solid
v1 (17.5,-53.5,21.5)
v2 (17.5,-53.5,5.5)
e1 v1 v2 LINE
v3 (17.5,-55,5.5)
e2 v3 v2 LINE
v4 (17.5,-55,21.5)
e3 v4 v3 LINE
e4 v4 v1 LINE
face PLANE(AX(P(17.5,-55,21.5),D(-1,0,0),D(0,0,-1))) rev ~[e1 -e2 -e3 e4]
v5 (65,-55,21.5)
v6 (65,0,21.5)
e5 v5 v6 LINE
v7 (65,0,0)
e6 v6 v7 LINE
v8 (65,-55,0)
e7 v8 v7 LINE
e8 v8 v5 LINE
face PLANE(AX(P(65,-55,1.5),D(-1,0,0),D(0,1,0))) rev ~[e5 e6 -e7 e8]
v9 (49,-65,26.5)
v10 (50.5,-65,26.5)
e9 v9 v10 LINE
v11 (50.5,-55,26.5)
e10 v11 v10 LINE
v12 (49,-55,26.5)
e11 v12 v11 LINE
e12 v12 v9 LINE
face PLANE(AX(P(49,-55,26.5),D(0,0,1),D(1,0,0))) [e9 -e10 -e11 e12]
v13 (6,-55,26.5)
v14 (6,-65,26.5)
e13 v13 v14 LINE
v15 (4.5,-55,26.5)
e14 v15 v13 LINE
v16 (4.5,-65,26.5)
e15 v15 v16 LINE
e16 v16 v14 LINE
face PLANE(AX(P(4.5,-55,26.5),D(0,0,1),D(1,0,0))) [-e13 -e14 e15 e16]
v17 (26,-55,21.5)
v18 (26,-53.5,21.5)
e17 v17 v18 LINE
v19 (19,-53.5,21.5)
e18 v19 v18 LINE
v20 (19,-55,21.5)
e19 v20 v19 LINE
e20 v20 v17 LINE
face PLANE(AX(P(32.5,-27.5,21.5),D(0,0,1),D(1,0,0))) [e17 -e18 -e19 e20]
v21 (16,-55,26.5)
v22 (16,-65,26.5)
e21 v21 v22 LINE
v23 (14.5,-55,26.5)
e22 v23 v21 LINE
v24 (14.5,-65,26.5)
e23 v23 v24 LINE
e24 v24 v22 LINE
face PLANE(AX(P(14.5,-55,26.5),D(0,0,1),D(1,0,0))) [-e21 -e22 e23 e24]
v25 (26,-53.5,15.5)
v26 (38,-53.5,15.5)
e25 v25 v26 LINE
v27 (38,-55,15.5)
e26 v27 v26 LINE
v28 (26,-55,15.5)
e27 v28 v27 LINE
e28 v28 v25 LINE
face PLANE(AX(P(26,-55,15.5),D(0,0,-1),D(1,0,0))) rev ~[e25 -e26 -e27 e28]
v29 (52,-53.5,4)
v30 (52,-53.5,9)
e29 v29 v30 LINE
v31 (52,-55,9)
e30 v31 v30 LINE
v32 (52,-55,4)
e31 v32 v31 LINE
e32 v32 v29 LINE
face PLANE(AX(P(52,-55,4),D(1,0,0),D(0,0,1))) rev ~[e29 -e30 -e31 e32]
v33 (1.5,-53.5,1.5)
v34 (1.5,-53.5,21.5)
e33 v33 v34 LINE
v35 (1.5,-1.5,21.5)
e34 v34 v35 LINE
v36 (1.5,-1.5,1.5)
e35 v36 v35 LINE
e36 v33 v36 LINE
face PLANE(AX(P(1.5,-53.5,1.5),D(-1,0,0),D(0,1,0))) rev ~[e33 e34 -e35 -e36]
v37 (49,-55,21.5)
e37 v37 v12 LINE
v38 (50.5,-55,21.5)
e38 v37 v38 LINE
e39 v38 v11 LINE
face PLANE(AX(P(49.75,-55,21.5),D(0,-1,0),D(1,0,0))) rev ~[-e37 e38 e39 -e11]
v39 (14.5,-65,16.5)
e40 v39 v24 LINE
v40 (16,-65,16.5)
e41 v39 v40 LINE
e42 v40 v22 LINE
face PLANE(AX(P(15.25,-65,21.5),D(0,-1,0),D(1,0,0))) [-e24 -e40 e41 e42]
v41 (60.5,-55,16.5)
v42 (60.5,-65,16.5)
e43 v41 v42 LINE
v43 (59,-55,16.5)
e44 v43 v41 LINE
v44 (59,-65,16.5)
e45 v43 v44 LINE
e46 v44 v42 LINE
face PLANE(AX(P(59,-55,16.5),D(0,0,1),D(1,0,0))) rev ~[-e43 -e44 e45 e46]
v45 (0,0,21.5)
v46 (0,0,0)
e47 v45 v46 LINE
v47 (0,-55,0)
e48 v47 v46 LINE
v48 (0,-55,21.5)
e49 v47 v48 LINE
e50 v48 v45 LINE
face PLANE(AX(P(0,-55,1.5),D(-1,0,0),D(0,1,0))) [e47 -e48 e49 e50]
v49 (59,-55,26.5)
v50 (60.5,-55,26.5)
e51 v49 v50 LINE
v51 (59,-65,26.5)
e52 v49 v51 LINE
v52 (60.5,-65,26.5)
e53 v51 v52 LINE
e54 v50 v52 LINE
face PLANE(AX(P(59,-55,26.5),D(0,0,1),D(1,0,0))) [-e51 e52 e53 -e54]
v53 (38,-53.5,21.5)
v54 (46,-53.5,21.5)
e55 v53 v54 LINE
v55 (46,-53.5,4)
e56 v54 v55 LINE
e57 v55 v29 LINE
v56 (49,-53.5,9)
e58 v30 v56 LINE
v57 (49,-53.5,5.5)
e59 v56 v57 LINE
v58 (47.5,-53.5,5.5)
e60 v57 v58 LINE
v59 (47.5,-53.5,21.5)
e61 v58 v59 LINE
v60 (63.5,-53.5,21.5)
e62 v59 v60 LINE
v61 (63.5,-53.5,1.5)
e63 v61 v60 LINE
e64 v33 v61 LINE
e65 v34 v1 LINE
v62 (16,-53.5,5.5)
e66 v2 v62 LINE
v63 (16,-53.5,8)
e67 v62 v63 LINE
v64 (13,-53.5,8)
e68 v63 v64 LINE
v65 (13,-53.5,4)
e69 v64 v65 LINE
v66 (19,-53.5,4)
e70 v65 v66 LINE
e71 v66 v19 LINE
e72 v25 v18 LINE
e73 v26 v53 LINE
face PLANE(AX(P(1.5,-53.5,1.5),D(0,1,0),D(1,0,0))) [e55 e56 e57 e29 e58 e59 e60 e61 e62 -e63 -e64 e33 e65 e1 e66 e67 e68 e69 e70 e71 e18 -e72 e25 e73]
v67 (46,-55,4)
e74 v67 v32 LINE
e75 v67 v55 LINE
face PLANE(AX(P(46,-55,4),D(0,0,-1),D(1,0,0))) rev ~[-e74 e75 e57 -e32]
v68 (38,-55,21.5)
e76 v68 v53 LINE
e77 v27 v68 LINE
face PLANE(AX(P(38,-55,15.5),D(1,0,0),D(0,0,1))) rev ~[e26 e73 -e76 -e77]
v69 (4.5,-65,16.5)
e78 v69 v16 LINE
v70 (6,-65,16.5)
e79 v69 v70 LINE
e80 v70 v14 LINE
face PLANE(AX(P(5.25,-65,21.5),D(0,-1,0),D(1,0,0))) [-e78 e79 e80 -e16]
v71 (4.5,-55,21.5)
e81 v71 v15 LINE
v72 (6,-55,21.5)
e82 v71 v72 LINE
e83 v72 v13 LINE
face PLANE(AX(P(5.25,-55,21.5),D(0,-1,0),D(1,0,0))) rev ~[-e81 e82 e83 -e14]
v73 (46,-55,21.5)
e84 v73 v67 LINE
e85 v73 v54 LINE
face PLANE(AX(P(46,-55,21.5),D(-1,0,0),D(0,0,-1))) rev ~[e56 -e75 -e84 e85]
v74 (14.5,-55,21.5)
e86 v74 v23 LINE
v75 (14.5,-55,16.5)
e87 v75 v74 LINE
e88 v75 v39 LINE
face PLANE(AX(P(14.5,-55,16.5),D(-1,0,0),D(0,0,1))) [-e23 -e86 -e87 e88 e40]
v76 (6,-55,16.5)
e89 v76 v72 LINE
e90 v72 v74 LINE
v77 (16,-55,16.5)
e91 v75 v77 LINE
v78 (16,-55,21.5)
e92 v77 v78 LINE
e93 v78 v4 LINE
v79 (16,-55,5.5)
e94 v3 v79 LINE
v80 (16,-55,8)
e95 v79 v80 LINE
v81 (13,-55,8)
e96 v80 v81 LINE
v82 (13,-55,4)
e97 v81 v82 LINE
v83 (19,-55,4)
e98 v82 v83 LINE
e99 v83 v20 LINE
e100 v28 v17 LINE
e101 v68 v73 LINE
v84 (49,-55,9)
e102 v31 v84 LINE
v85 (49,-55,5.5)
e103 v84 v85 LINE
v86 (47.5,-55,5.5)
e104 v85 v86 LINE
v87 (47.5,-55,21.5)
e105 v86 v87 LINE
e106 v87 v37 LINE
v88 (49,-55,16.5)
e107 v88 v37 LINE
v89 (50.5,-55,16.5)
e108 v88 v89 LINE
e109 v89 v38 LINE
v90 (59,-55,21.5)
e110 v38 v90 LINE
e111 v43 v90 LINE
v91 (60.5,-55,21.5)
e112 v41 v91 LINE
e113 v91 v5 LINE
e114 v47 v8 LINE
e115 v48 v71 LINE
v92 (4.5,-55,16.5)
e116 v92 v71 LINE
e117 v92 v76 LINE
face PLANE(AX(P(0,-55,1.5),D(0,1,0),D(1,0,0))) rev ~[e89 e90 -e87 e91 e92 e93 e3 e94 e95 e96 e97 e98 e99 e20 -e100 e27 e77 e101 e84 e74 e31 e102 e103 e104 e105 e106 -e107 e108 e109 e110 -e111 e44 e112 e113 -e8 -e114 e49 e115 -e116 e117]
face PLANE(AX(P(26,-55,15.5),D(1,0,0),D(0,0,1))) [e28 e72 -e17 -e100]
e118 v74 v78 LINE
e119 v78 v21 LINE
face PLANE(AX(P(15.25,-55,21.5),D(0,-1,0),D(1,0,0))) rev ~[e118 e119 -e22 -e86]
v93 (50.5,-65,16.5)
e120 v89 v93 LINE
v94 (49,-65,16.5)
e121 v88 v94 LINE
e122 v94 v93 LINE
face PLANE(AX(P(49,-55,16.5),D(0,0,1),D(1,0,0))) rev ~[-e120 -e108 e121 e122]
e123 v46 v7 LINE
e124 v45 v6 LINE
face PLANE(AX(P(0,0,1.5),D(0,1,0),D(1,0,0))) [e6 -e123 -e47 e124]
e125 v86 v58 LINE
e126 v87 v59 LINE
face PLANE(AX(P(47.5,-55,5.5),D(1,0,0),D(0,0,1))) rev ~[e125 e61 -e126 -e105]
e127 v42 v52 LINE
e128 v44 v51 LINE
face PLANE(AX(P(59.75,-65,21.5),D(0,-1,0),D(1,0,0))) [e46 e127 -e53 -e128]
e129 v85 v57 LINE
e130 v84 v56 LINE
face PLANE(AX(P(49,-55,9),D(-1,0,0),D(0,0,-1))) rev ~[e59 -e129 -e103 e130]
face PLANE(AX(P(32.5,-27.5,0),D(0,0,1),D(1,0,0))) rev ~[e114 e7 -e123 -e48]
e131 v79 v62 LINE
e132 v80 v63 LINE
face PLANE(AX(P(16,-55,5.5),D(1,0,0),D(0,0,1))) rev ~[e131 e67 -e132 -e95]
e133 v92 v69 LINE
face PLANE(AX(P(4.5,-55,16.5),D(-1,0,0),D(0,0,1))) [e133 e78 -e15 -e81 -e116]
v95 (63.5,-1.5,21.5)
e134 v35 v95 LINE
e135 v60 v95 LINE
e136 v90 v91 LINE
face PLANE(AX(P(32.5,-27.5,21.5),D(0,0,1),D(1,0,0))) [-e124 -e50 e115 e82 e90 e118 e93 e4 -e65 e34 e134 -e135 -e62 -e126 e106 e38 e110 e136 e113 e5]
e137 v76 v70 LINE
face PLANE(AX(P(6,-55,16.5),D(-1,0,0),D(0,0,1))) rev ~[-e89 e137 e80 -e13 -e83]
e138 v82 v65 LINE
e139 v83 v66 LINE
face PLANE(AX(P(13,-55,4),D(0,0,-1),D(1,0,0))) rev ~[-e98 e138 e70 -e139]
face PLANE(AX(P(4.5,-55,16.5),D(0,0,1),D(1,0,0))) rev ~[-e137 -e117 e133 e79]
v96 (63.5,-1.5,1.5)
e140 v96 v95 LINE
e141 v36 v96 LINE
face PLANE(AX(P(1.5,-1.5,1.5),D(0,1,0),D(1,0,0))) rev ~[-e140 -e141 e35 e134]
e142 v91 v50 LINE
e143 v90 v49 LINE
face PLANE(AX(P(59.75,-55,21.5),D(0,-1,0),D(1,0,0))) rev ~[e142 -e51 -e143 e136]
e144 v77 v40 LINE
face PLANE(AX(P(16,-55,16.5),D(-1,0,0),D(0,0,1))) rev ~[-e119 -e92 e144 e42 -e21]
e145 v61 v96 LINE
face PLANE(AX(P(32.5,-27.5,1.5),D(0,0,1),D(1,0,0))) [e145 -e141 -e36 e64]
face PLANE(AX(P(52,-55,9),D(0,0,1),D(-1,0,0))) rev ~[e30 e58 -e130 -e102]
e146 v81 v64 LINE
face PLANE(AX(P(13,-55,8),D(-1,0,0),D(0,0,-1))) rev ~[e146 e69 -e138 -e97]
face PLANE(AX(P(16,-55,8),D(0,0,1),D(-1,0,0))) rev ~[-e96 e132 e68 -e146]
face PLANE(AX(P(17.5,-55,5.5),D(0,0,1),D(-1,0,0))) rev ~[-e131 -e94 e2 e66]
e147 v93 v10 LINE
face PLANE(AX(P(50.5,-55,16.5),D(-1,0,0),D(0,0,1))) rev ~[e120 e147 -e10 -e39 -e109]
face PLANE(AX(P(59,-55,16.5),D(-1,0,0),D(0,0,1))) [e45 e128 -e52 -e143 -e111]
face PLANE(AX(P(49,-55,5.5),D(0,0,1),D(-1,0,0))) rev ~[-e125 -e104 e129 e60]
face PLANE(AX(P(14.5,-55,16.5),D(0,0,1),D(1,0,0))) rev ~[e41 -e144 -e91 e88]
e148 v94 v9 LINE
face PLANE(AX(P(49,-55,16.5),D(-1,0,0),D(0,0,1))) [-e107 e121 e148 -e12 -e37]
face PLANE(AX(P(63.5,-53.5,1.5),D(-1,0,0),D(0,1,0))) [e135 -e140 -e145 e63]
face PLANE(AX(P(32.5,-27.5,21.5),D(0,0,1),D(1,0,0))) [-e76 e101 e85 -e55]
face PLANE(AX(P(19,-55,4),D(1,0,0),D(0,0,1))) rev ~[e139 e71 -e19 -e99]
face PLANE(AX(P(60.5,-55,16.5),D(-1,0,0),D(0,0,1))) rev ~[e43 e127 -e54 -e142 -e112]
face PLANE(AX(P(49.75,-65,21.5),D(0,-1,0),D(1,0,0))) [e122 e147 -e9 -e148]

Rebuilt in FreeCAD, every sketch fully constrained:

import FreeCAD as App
import Part
import Sketcher
from FreeCAD import Vector
Q = App.Units.Quantity


def add_polygon(sketch, points):
    """Adds a closed chain of lines whose ends are joined by coincident constraints."""
    first, n = sketch.GeometryCount, len(points)
    for a, b in zip(points, points[1:] + points[:1]):
        sketch.addGeometry(Part.LineSegment(App.Vector(*a, 0), App.Vector(*b, 0)), False)
    for i in range(n):
        sketch.addConstraint(Sketcher.Constraint("Coincident", first + i, 2, first + (i + 1) % n, 1))

doc = App.newDocument("Part")
body = doc.addObject("PartDesign::Body", "Body")

# Sketch on XY plane
sketch1 = body.newObject("Sketcher::SketchObject", "Sketch")
sketch1.AttachmentSupport = (doc.getObject("XY_Plane"), [""])
sketch1.MapMode = "FlatFace"
add_polygon(sketch1, [(0, 0), (0, -55), (65, -55), (65, 0)])  # lines 0-3
sketch1.addConstraint(Sketcher.Constraint("Vertical", 0))
sketch1.addConstraint(Sketcher.Constraint("Horizontal", 1))
sketch1.addConstraint(Sketcher.Constraint("Vertical", 2))
sketch1.addConstraint(Sketcher.Constraint("Horizontal", 3))
sketch1.addConstraint(Sketcher.Constraint("Coincident", 3, 2, -1, 1))
sketch1.addConstraint(Sketcher.Constraint("DistanceX", 1, 1, 1, 2, Q("65 mm")))
sketch1.addConstraint(Sketcher.Constraint("DistanceY", 0, 2, 0, 1, Q("55 mm")))
pad1 = body.newObject("PartDesign::Pad", "Pad")
pad1.Profile = sketch1
pad1.Length = 1.5

# Sketch on XY plane
sketch2 = body.newObject("Sketcher::SketchObject", "Sketch001")
sketch2.AttachmentSupport = (doc.getObject("XY_Plane"), [""])
sketch2.MapMode = "FlatFace"
sketch2.AttachmentOffset = App.Placement(Vector(0, 0, 1.5), App.Rotation())
add_polygon(sketch2, [(0, 0), (0, -55), (65, -55), (65, 0)])  # lines 0-3
add_polygon(sketch2, [(63.5, -53.5), (1.5, -53.5), (1.5, -1.5), (63.5, -1.5)])  # lines 4-7
sketch2.addConstraint(Sketcher.Constraint("Vertical", 0))
sketch2.addConstraint(Sketcher.Constraint("Horizontal", 1))
sketch2.addConstraint(Sketcher.Constraint("Vertical", 2))
sketch2.addConstraint(Sketcher.Constraint("Horizontal", 3))
sketch2.addConstraint(Sketcher.Constraint("Horizontal", 4))
sketch2.addConstraint(Sketcher.Constraint("Vertical", 5))
sketch2.addConstraint(Sketcher.Constraint("Horizontal", 6))
sketch2.addConstraint(Sketcher.Constraint("Vertical", 7))
sketch2.addConstraint(Sketcher.Constraint("Coincident", 3, 2, -1, 1))
sketch2.addConstraint(Sketcher.Constraint("DistanceX", 1, 1, 1, 2, Q("65 mm")))
sketch2.addConstraint(Sketcher.Constraint("DistanceX", 4, 2, 4, 1, Q("62 mm")))
sketch2.addConstraint(Sketcher.Constraint("DistanceY", 0, 2, 0, 1, Q("55 mm")))
sketch2.addConstraint(Sketcher.Constraint("DistanceY", 5, 1, 5, 2, Q("52 mm")))
sketch2.addConstraint(Sketcher.Constraint("DistanceX", -1, 1, 4, 2, Q("1.5 mm")))
sketch2.addConstraint(Sketcher.Constraint("DistanceY", 4, 2, -1, 1, Q("53.5 mm")))
pad2 = body.newObject("PartDesign::Pad", "Pad001")
pad2.Profile = sketch2
pad2.Length = 20

# Sketch on XZ plane
sketch3 = body.newObject("Sketcher::SketchObject", "Sketch002")
sketch3.AttachmentSupport = (doc.getObject("XZ_Plane"), [""])
sketch3.MapMode = "FlatFace"
sketch3.AttachmentOffset = App.Placement(Vector(0, 0, 55), App.Rotation())
add_polygon(sketch3, [(26, 21.5), (26, 15.5), (38, 15.5), (38, 21.5)])  # lines 0-3
sketch3.addConstraint(Sketcher.Constraint("Vertical", 0))
sketch3.addConstraint(Sketcher.Constraint("Horizontal", 1))
sketch3.addConstraint(Sketcher.Constraint("Vertical", 2))
sketch3.addConstraint(Sketcher.Constraint("Horizontal", 3))
sketch3.addConstraint(Sketcher.Constraint("DistanceX", 1, 1, 1, 2, Q("12 mm")))
sketch3.addConstraint(Sketcher.Constraint("DistanceY", 0, 2, 0, 1, Q("6 mm")))
sketch3.addConstraint(Sketcher.Constraint("DistanceX", -1, 1, 0, 2, Q("26 mm")))
sketch3.addConstraint(Sketcher.Constraint("DistanceY", -1, 1, 0, 2, Q("15.5 mm")))
pocket1 = body.newObject("PartDesign::Pocket", "Pocket")
pocket1.Profile = sketch3
pocket1.Length = 1.5

# Sketch on XZ plane
sketch4 = body.newObject("Sketcher::SketchObject", "Sketch003")
sketch4.AttachmentSupport = (doc.getObject("XZ_Plane"), [""])
sketch4.MapMode = "FlatFace"
sketch4.AttachmentOffset = App.Placement(Vector(0, 0, 55), App.Rotation())
add_polygon(sketch4, [(19, 21.5), (17.5, 21.5), (17.5, 5.5), (16, 5.5), (16, 8), (13, 8), (13, 4), (19, 4)])  # lines 0-7
add_polygon(sketch4, [(47.5, 5.5), (47.5, 21.5), (46, 21.5), (46, 4), (52, 4), (52, 9), (49, 9), (49, 5.5)])  # lines 8-15
sketch4.addConstraint(Sketcher.Constraint("Horizontal", 0))
sketch4.addConstraint(Sketcher.Constraint("Vertical", 1))
sketch4.addConstraint(Sketcher.Constraint("Horizontal", 2))
sketch4.addConstraint(Sketcher.Constraint("Vertical", 3))
sketch4.addConstraint(Sketcher.Constraint("Horizontal", 4))
sketch4.addConstraint(Sketcher.Constraint("Vertical", 5))
sketch4.addConstraint(Sketcher.Constraint("Horizontal", 6))
sketch4.addConstraint(Sketcher.Constraint("Vertical", 7))
sketch4.addConstraint(Sketcher.Constraint("Vertical", 8))
sketch4.addConstraint(Sketcher.Constraint("Horizontal", 9))
sketch4.addConstraint(Sketcher.Constraint("Vertical", 10))
sketch4.addConstraint(Sketcher.Constraint("Horizontal", 11))
sketch4.addConstraint(Sketcher.Constraint("Vertical", 12))
sketch4.addConstraint(Sketcher.Constraint("Horizontal", 13))
sketch4.addConstraint(Sketcher.Constraint("Vertical", 14))
sketch4.addConstraint(Sketcher.Constraint("Horizontal", 15))
sketch4.addConstraint(Sketcher.Constraint("Horizontal", 7, 2, 8, 2))
sketch4.addConstraint(Sketcher.Constraint("Horizontal", 6, 2, 10, 2))
sketch4.addConstraint(Sketcher.Constraint("Horizontal", 2, 2, 14, 2))
sketch4.addConstraint(Sketcher.Constraint("Equal", 0, 2))
sketch4.addConstraint(Sketcher.Constraint("Equal", 2, 9))
sketch4.addConstraint(Sketcher.Constraint("Equal", 6, 11))
sketch4.addConstraint(Sketcher.Constraint("Equal", 4, 13))
sketch4.addConstraint(Sketcher.Constraint("DistanceX", 4, 2, 4, 1, Q("3 mm")))
sketch4.addConstraint(Sketcher.Constraint("DistanceX", 6, 1, 6, 2, Q("6 mm")))
sketch4.addConstraint(Sketcher.Constraint("DistanceY", 1, 2, 1, 1, Q("16 mm")))
sketch4.addConstraint(Sketcher.Constraint("DistanceY", 5, 2, 5, 1, Q("4 mm")))
sketch4.addConstraint(Sketcher.Constraint("DistanceY", 12, 1, 12, 2, Q("5 mm")))
sketch4.addConstraint(Sketcher.Constraint("DistanceY", 3, 1, 3, 2, Q("2.5 mm")))
sketch4.addConstraint(Sketcher.Constraint("DistanceX", -1, 1, 2, 2, Q("16 mm")))
sketch4.addConstraint(Sketcher.Constraint("DistanceY", -1, 1, 3, 2, Q("8 mm")))
sketch4.addConstraint(Sketcher.Constraint("DistanceX", -1, 1, 9, 2, Q("46 mm")))
pocket2 = body.newObject("PartDesign::Pocket", "Pocket001")
pocket2.Profile = sketch4
pocket2.Length = 1.5

# Sketch on XZ plane
sketch5 = body.newObject("Sketcher::SketchObject", "Sketch004")
sketch5.AttachmentSupport = (doc.getObject("XZ_Plane"), [""])
sketch5.MapMode = "FlatFace"
sketch5.AttachmentOffset = App.Placement(Vector(0, 0, 55), App.Rotation())
add_polygon(sketch5, [(14.5, 26.5), (14.5, 16.5), (16, 16.5), (16, 26.5)])  # lines 0-3
add_polygon(sketch5, [(4.5, 26.5), (4.5, 16.5), (6, 16.5), (6, 26.5)])  # lines 4-7
add_polygon(sketch5, [(49, 26.5), (49, 16.5), (50.5, 16.5), (50.5, 26.5)])  # lines 8-11
add_polygon(sketch5, [(59, 26.5), (59, 16.5), (60.5, 16.5), (60.5, 26.5)])  # lines 12-15
sketch5.addConstraint(Sketcher.Constraint("Vertical", 0))
sketch5.addConstraint(Sketcher.Constraint("Horizontal", 1))
sketch5.addConstraint(Sketcher.Constraint("Vertical", 2))
sketch5.addConstraint(Sketcher.Constraint("Horizontal", 3))
sketch5.addConstraint(Sketcher.Constraint("Vertical", 4))
sketch5.addConstraint(Sketcher.Constraint("Horizontal", 5))
sketch5.addConstraint(Sketcher.Constraint("Vertical", 6))
sketch5.addConstraint(Sketcher.Constraint("Horizontal", 7))
sketch5.addConstraint(Sketcher.Constraint("Vertical", 8))
sketch5.addConstraint(Sketcher.Constraint("Horizontal", 9))
sketch5.addConstraint(Sketcher.Constraint("Vertical", 10))
sketch5.addConstraint(Sketcher.Constraint("Horizontal", 11))
sketch5.addConstraint(Sketcher.Constraint("Vertical", 12))
sketch5.addConstraint(Sketcher.Constraint("Horizontal", 13))
sketch5.addConstraint(Sketcher.Constraint("Vertical", 14))
sketch5.addConstraint(Sketcher.Constraint("Horizontal", 15))
sketch5.addConstraint(Sketcher.Constraint("Horizontal", 1, 2, 4, 2))
sketch5.addConstraint(Sketcher.Constraint("Horizontal", 3, 2, 6, 2))
sketch5.addConstraint(Sketcher.Constraint("Horizontal", 5, 2, 8, 2))
sketch5.addConstraint(Sketcher.Constraint("Horizontal", 7, 2, 10, 2))
sketch5.addConstraint(Sketcher.Constraint("Horizontal", 9, 2, 12, 2))
sketch5.addConstraint(Sketcher.Constraint("Horizontal", 11, 2, 14, 2))
sketch5.addConstraint(Sketcher.Constraint("Equal", 3, 5))
sketch5.addConstraint(Sketcher.Constraint("Equal", 7, 9))
sketch5.addConstraint(Sketcher.Constraint("Equal", 11, 13))
sketch5.addConstraint(Sketcher.Constraint("DistanceY", 0, 2, 0, 1, Q("10 mm")))
sketch5.addConstraint(Sketcher.Constraint("DistanceX", 1, 1, 1, 2, Q("1.5 mm")))
sketch5.addConstraint(Sketcher.Constraint("DistanceX", -1, 1, 1, 2, Q("16 mm")))
sketch5.addConstraint(Sketcher.Constraint("DistanceX", -1, 1, 5, 2, Q("6 mm")))
sketch5.addConstraint(Sketcher.Constraint("DistanceX", -1, 1, 8, 2, Q("49 mm")))
sketch5.addConstraint(Sketcher.Constraint("DistanceX", -1, 1, 12, 2, Q("59 mm")))
sketch5.addConstraint(Sketcher.Constraint("DistanceY", -1, 1, 0, 2, Q("16.5 mm")))
pad3 = body.newObject("PartDesign::Pad", "Pad002")
pad3.Profile = sketch5
pad3.Length = 10

doc.recompute()
